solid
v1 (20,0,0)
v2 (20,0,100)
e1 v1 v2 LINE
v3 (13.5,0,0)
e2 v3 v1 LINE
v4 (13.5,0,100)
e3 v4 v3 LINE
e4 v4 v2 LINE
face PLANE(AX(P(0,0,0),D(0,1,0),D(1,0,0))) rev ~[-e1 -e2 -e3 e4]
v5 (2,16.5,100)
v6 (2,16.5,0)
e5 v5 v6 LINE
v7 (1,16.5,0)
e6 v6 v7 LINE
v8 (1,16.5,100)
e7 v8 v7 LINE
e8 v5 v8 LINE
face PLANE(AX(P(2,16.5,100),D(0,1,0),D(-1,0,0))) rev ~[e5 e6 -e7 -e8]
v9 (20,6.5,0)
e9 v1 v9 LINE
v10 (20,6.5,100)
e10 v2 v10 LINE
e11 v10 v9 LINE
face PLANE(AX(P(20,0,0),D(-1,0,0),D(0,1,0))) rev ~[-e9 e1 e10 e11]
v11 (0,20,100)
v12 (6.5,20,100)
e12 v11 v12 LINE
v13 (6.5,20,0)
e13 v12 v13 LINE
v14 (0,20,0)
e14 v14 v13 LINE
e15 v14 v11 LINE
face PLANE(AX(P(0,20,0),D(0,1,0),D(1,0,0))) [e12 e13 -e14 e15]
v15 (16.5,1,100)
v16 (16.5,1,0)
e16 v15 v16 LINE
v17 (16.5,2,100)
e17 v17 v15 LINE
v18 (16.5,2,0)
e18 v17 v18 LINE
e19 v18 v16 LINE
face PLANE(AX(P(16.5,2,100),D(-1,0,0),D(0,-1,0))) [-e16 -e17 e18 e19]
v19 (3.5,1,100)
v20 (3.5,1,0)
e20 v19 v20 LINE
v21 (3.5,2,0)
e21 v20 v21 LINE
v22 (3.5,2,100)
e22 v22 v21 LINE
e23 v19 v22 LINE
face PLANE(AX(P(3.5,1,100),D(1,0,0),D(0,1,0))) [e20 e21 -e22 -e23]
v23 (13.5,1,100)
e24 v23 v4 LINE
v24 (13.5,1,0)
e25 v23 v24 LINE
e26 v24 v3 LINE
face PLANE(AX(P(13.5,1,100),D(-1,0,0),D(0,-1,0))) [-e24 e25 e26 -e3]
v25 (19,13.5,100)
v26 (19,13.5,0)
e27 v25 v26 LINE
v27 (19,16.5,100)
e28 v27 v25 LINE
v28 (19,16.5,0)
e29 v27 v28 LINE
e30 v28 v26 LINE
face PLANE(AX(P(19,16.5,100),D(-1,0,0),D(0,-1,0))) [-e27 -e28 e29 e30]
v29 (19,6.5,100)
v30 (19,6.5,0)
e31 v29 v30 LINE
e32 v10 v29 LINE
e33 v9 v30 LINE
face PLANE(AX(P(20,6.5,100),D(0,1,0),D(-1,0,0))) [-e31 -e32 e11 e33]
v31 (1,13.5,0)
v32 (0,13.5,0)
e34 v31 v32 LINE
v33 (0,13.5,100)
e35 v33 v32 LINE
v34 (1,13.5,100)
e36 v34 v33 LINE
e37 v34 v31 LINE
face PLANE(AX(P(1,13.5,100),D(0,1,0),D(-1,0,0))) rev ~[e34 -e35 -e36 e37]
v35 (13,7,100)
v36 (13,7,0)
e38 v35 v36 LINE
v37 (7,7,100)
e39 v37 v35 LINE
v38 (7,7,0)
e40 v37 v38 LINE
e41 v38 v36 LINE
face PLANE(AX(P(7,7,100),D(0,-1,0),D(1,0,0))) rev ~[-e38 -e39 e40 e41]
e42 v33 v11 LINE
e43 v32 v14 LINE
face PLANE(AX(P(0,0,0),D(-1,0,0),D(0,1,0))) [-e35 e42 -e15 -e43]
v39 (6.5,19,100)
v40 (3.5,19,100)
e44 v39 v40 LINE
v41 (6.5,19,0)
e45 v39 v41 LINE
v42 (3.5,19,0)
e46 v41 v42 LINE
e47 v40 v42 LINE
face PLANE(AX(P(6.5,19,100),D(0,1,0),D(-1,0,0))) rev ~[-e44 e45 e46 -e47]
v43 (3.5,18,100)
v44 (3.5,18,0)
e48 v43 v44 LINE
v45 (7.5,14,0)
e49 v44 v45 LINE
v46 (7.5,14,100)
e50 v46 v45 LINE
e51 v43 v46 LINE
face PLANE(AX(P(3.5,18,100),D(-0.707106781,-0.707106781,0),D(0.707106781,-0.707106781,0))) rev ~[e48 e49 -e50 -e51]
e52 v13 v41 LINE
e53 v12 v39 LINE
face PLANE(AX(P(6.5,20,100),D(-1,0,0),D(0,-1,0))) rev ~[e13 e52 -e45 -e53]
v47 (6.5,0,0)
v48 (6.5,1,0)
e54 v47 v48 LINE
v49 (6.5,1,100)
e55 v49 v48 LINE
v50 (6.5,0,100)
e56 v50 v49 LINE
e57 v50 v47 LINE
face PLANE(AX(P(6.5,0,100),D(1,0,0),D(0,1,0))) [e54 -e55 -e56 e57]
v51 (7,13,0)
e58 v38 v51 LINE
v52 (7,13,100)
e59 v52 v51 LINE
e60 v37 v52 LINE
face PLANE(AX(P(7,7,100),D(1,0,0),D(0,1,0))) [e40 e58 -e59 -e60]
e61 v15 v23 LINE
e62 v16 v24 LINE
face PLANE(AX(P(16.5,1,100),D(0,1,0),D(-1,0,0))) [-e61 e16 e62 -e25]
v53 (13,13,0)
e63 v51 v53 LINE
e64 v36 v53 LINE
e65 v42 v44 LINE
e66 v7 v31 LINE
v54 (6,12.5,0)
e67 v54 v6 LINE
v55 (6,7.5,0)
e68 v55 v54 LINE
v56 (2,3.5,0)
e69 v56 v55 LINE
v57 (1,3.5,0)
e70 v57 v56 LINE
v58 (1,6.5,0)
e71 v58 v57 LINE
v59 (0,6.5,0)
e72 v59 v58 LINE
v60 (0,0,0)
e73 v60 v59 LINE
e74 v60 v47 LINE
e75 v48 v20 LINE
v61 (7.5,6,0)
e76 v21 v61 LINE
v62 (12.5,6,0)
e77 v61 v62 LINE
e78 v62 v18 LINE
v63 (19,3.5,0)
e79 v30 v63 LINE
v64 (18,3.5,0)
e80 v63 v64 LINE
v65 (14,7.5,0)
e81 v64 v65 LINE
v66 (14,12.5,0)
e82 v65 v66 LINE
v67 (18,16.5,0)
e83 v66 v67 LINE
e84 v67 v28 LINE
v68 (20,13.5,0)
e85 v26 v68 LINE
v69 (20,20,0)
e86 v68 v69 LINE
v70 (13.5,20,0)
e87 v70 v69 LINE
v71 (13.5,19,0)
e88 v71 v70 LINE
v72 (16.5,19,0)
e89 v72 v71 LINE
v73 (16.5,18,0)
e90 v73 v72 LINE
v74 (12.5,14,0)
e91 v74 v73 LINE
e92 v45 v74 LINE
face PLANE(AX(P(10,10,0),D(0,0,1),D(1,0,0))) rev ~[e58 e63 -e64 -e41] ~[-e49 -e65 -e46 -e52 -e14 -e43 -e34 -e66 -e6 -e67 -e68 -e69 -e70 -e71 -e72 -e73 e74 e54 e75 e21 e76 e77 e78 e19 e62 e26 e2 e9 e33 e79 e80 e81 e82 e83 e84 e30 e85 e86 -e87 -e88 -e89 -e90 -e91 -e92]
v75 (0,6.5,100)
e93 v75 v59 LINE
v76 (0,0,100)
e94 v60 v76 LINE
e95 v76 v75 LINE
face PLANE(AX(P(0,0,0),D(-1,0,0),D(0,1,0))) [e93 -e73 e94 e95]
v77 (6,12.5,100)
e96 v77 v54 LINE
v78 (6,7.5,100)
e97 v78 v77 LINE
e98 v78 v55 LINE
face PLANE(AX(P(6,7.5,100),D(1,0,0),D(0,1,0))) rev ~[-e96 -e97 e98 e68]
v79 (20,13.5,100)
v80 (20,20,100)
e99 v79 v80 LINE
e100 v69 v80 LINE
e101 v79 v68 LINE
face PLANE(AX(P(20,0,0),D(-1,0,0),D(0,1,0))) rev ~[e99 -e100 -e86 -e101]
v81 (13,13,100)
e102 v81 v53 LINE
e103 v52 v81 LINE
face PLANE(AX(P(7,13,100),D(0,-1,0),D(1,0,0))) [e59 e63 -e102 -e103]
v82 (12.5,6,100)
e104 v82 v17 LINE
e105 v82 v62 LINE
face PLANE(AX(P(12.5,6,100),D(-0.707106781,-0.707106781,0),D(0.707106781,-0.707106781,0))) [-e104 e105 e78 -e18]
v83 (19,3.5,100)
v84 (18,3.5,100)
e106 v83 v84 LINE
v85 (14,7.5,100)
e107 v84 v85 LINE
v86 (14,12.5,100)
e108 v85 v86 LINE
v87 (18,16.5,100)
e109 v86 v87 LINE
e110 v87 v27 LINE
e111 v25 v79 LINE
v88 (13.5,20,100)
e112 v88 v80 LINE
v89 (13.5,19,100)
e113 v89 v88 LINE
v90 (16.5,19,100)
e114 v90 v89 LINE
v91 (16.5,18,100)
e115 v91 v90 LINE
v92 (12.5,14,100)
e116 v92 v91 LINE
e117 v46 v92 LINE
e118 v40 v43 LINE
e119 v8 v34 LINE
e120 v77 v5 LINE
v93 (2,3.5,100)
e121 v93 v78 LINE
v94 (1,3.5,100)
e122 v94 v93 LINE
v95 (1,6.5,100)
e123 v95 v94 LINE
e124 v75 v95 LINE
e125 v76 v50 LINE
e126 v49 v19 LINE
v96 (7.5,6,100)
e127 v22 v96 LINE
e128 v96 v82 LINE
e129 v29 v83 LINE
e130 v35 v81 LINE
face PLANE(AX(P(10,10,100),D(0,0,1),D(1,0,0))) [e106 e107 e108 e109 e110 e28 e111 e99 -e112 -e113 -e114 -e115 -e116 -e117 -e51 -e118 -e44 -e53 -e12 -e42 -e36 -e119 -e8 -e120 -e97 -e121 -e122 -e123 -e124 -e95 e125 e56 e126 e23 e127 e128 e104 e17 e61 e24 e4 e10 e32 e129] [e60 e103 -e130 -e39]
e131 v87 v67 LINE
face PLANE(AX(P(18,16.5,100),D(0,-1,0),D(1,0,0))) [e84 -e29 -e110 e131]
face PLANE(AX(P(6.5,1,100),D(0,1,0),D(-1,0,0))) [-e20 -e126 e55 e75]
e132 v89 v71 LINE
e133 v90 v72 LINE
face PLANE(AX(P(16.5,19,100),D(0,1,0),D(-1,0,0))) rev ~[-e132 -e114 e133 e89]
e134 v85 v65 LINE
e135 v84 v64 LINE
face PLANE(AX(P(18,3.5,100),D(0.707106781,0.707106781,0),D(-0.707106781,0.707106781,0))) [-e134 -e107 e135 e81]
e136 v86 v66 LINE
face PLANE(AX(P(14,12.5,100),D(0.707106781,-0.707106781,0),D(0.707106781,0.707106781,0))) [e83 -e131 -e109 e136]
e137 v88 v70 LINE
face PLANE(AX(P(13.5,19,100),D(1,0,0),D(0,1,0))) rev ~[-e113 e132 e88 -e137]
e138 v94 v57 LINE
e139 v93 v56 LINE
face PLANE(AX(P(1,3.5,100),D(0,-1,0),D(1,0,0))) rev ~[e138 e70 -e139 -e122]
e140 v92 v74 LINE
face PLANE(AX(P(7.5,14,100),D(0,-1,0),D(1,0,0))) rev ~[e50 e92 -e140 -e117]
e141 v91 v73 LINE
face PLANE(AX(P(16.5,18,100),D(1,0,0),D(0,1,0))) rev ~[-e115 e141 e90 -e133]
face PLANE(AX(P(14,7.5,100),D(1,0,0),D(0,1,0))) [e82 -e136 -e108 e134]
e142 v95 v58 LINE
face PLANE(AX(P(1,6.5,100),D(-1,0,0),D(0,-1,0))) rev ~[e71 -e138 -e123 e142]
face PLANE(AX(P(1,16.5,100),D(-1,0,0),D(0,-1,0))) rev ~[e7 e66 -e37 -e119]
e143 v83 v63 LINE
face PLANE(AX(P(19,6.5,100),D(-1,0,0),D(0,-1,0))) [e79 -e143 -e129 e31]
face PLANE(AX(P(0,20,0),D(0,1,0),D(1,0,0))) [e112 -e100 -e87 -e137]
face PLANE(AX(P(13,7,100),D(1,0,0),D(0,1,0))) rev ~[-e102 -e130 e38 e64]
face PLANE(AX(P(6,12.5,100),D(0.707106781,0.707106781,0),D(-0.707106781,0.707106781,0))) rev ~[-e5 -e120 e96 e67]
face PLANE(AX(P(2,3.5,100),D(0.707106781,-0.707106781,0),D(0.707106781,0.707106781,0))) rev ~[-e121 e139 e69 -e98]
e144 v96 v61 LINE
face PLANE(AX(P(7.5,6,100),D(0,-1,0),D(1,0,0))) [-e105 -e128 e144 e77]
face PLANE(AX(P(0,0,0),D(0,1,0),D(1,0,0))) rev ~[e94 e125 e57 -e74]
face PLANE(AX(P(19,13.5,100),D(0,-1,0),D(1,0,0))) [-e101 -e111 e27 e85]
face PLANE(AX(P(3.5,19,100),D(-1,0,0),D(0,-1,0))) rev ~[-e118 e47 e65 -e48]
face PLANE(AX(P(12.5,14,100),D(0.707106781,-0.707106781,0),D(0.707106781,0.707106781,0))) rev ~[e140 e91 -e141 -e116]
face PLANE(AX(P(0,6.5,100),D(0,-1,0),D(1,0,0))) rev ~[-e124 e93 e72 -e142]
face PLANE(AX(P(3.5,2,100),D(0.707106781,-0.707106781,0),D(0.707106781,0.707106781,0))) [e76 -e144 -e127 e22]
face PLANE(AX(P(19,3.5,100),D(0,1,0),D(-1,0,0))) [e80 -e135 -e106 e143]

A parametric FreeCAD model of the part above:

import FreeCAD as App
import Part
import Sketcher

V = App.Vector

doc = App.newDocument("Part")
body = doc.addObject("PartDesign::Body", "Body")

sketch1 = doc.addObject("Sketcher::SketchObject", "Sketch")
body.addObject(sketch1)
sketch1.AttachmentSupport = (doc.XY_Plane, [""])
sketch1.MapMode = "FlatFace"
sketch1.addGeometry(Part.LineSegment(V(0, 20, 0), V(0, 0, 0)), False)
sketch1.addGeometry(Part.LineSegment(V(0, 0, 0), V(20, 0, 0)), False)
sketch1.addGeometry(Part.LineSegment(V(20, 0, 0), V(20, 20, 0)), False)
sketch1.addGeometry(Part.LineSegment(V(20, 20, 0), V(0, 20, 0)), False)
sketch1.addConstraint(Sketcher.Constraint("Coincident", 0, 2, 1, 1))
sketch1.addConstraint(Sketcher.Constraint("Coincident", 1, 2, 2, 1))
sketch1.addConstraint(Sketcher.Constraint("Coincident", 2, 2, 3, 1))
sketch1.addConstraint(Sketcher.Constraint("Coincident", 3, 2, 0, 1))
sketch1.addConstraint(Sketcher.Constraint("Vertical", 0))
sketch1.addConstraint(Sketcher.Constraint("Horizontal", 1))
sketch1.addConstraint(Sketcher.Constraint("Vertical", 2))
sketch1.addConstraint(Sketcher.Constraint("Horizontal", 3))
sketch1.addConstraint(Sketcher.Constraint("Coincident", 0, 2, -1, 1))
sketch1.addConstraint(Sketcher.Constraint("Equal", 3, 0))
sketch1.addConstraint(Sketcher.Constraint("DistanceX", 1, 1, 1, 2, 20.0))
pad1 = doc.addObject("PartDesign::Pad", "Pad")
body.addObject(pad1)
pad1.Profile = sketch1
pad1.Length = 100

sketch2 = doc.addObject("Sketcher::SketchObject", "Sketch001")
body.addObject(sketch2)
sketch2.AttachmentSupport = (doc.XY_Plane, [""])
sketch2.MapMode = "FlatFace"
sketch2.AttachmentOffset = App.Placement(V(0, 0, 100), App.Rotation())
sketch2.addGeometry(Part.LineSegment(V(7, 13, 0), V(7, 7, 0)), False)
sketch2.addGeometry(Part.LineSegment(V(7, 7, 0), V(13, 7, 0)), False)
sketch2.addGeometry(Part.LineSegment(V(13, 7, 0), V(13, 13, 0)), False)
sketch2.addGeometry(Part.LineSegment(V(13, 13, 0), V(7, 13, 0)), False)
sketch2.addConstraint(Sketcher.Constraint("Coincident", 0, 2, 1, 1))
sketch2.addConstraint(Sketcher.Constraint("Coincident", 1, 2, 2, 1))
sketch2.addConstraint(Sketcher.Constraint("Coincident", 2, 2, 3, 1))
sketch2.addConstraint(Sketcher.Constraint("Coincident", 3, 2, 0, 1))
sketch2.addConstraint(Sketcher.Constraint("Vertical", 0))
sketch2.addConstraint(Sketcher.Constraint("Horizontal", 1))
sketch2.addConstraint(Sketcher.Constraint("Vertical", 2))
sketch2.addConstraint(Sketcher.Constraint("Horizontal", 3))
sketch2.addConstraint(Sketcher.Constraint("Equal", 3, 0))
sketch2.addConstraint(Sketcher.Constraint("DistanceX", 1, 1, 1, 2, 6.0))
sketch2.addConstraint(Sketcher.Constraint("DistanceX", -1, 1, 0, 2, 7.0))
sketch2.addConstraint(Sketcher.Constraint("DistanceY", -1, 1, 0, 2, 7.0))
pocket1 = doc.addObject("PartDesign::Pocket", "Pocket")
body.addObject(pocket1)
pocket1.Profile = sketch2
pocket1.Type = "ThroughAll"

sketch3 = doc.addObject("Sketcher::SketchObject", "Sketch002")
body.addObject(sketch3)
sketch3.AttachmentSupport = (doc.XY_Plane, [""])
sketch3.MapMode = "FlatFace"
sketch3.AttachmentOffset = App.Placement(V(0, 0, 100), App.Rotation())
sketch3.addGeometry(Part.LineSegment(V(0, 6.5, 0), V(1, 6.5, 0)), False)
sketch3.addGeometry(Part.LineSegment(V(1, 6.5, 0), V(1, 3.5, 0)), False)
sketch3.addGeometry(Part.LineSegment(V(1, 3.5, 0), V(2, 3.5, 0)), False)
sketch3.addGeometry(Part.LineSegment(V(2, 3.5, 0), V(6, 7.5, 0)), False)
sketch3.addGeometry(Part.LineSegment(V(6, 7.5, 0), V(6, 12.5, 0)), False)
sketch3.addGeometry(Part.LineSegment(V(6, 12.5, 0), V(2, 16.5, 0)), False)
sketch3.addGeometry(Part.LineSegment(V(2, 16.5, 0), V(1, 16.5, 0)), False)
sketch3.addGeometry(Part.LineSegment(V(1, 16.5, 0), V(1, 13.5, 0)), False)
sketch3.addGeometry(Part.LineSegment(V(1, 13.5, 0), V(0, 13.5, 0)), False)
sketch3.addGeometry(Part.LineSegment(V(0, 13.5, 0), V(0, 6.5, 0)), False)
sketch3.addGeometry(Part.LineSegment(V(6.5, 1, 0), V(6.5, 0, 0)), False)
sketch3.addGeometry(Part.LineSegment(V(6.5, 0, 0), V(13.5, 0, 0)), False)
sketch3.addGeometry(Part.LineSegment(V(13.5, 0, 0), V(13.5, 1, 0)), False)
sketch3.addGeometry(Part.LineSegment(V(13.5, 1, 0), V(16.5, 1, 0)), False)
sketch3.addGeometry(Part.LineSegment(V(16.5, 1, 0), V(16.5, 2, 0)), False)
sketch3.addGeometry(Part.LineSegment(V(16.5, 2, 0), V(12.5, 6, 0)), False)
sketch3.addGeometry(Part.LineSegment(V(12.5, 6, 0), V(7.5, 6, 0)), False)
sketch3.addGeometry(Part.LineSegment(V(7.5, 6, 0), V(3.5, 2, 0)), False)
sketch3.addGeometry(Part.LineSegment(V(3.5, 2, 0), V(3.5, 1, 0)), False)
sketch3.addGeometry(Part.LineSegment(V(3.5, 1, 0), V(6.5, 1, 0)), False)
sketch3.addGeometry(Part.LineSegment(V(19, 6.5, 0), V(20, 6.5, 0)), False)
sketch3.addGeometry(Part.LineSegment(V(20, 6.5, 0), V(20, 13.5, 0)), False)
sketch3.addGeometry(Part.LineSegment(V(20, 13.5, 0), V(19, 13.5, 0)), False)
sketch3.addGeometry(Part.LineSegment(V(19, 13.5, 0), V(19, 16.5, 0)), False)
sketch3.addGeometry(Part.LineSegment(V(19, 16.5, 0), V(18, 16.5, 0)), False)
sketch3.addGeometry(Part.LineSegment(V(18, 16.5, 0), V(14, 12.5, 0)), False)
sketch3.addGeometry(Part.LineSegment(V(14, 12.5, 0), V(14, 7.5, 0)), False)
sketch3.addGeometry(Part.LineSegment(V(14, 7.5, 0), V(18, 3.5, 0)), False)
sketch3.addGeometry(Part.LineSegment(V(18, 3.5, 0), V(19, 3.5, 0)), False)
sketch3.addGeometry(Part.LineSegment(V(19, 3.5, 0), V(19, 6.5, 0)), False)
sketch3.addGeometry(Part.LineSegment(V(6.5, 20, 0), V(6.5, 19, 0)), False)
sketch3.addGeometry(Part.LineSegment(V(6.5, 19, 0), V(3.5, 19, 0)), False)
sketch3.addGeometry(Part.LineSegment(V(3.5, 19, 0), V(3.5, 18, 0)), False)
sketch3.addGeometry(Part.LineSegment(V(3.5, 18, 0), V(7.5, 14, 0)), False)
sketch3.addGeometry(Part.LineSegment(V(7.5, 14, 0), V(12.5, 14, 0)), False)
sketch3.addGeometry(Part.LineSegment(V(12.5, 14, 0), V(16.5, 18, 0)), False)
sketch3.addGeometry(Part.LineSegment(V(16.5, 18, 0), V(16.5, 19, 0)), False)
sketch3.addGeometry(Part.LineSegment(V(16.5, 19, 0), V(13.5, 19, 0)), False)
sketch3.addGeometry(Part.LineSegment(V(13.5, 19, 0), V(13.5, 20, 0)), False)
sketch3.addGeometry(Part.LineSegment(V(13.5, 20, 0), V(6.5, 20, 0)), False)
sketch3.addConstraint(Sketcher.Constraint("Coincident", 0, 2, 1, 1))
sketch3.addConstraint(Sketcher.Constraint("Coincident", 1, 2, 2, 1))
sketch3.addConstraint(Sketcher.Constraint("Coincident", 2, 2, 3, 1))
sketch3.addConstraint(Sketcher.Constraint("Coincident", 3, 2, 4, 1))
sketch3.addConstraint(Sketcher.Constraint("Coincident", 4, 2, 5, 1))
sketch3.addConstraint(Sketcher.Constraint("Coincident", 5, 2, 6, 1))
sketch3.addConstraint(Sketcher.Constraint("Coincident", 6, 2, 7, 1))
sketch3.addConstraint(Sketcher.Constraint("Coincident", 7, 2, 8, 1))
sketch3.addConstraint(Sketcher.Constraint("Coincident", 8, 2, 9, 1))
sketch3.addConstraint(Sketcher.Constraint("Coincident", 9, 2, 0, 1))
sketch3.addConstraint(Sketcher.Constraint("Coincident", 10, 2, 11, 1))
sketch3.addConstraint(Sketcher.Constraint("Coincident", 11, 2, 12, 1))
sketch3.addConstraint(Sketcher.Constraint("Coincident", 12, 2, 13, 1))
sketch3.addConstraint(Sketcher.Constraint("Coincident", 13, 2, 14, 1))
sketch3.addConstraint(Sketcher.Constraint("Coincident", 14, 2, 15, 1))
sketch3.addConstraint(Sketcher.Constraint("Coincident", 15, 2, 16, 1))
sketch3.addConstraint(Sketcher.Constraint("Coincident", 16, 2, 17, 1))
sketch3.addConstraint(Sketcher.Constraint("Coincident", 17, 2, 18, 1))
sketch3.addConstraint(Sketcher.Constraint("Coincident", 18, 2, 19, 1))
sketch3.addConstraint(Sketcher.Constraint("Coincident", 19, 2, 10, 1))
sketch3.addConstraint(Sketcher.Constraint("Coincident", 20, 2, 21, 1))
sketch3.addConstraint(Sketcher.Constraint("Coincident", 21, 2, 22, 1))
sketch3.addConstraint(Sketcher.Constraint("Coincident", 22, 2, 23, 1))
sketch3.addConstraint(Sketcher.Constraint("Coincident", 23, 2, 24, 1))
sketch3.addConstraint(Sketcher.Constraint("Coincident", 24, 2, 25, 1))
sketch3.addConstraint(Sketcher.Constraint("Coincident", 25, 2, 26, 1))
sketch3.addConstraint(Sketcher.Constraint("Coincident", 26, 2, 27, 1))
sketch3.addConstraint(Sketcher.Constraint("Coincident", 27, 2, 28, 1))
sketch3.addConstraint(Sketcher.Constraint("Coincident", 28, 2, 29, 1))
sketch3.addConstraint(Sketcher.Constraint("Coincident", 29, 2, 20, 1))
sketch3.addConstraint(Sketcher.Constraint("Coincident", 30, 2, 31, 1))
sketch3.addConstraint(Sketcher.Constraint("Coincident", 31, 2, 32, 1))
sketch3.addConstraint(Sketcher.Constraint("Coincident", 32, 2, 33, 1))
sketch3.addConstraint(Sketcher.Constraint("Coincident", 33, 2, 34, 1))
sketch3.addConstraint(Sketcher.Constraint("Coincident", 34, 2, 35, 1))
sketch3.addConstraint(Sketcher.Constraint("Coincident", 35, 2, 36, 1))
sketch3.addConstraint(Sketcher.Constraint("Coincident", 36, 2, 37, 1))
sketch3.addConstraint(Sketcher.Constraint("Coincident", 37, 2, 38, 1))
sketch3.addConstraint(Sketcher.Constraint("Coincident", 38, 2, 39, 1))
sketch3.addConstraint(Sketcher.Constraint("Coincident", 39, 2, 30, 1))
sketch3.addConstraint(Sketcher.Constraint("Horizontal", 0))
sketch3.addConstraint(Sketcher.Constraint("Vertical", 1))
sketch3.addConstraint(Sketcher.Constraint("Horizontal", 2))
sketch3.addConstraint(Sketcher.Constraint("Vertical", 4))
sketch3.addConstraint(Sketcher.Constraint("Horizontal", 6))
sketch3.addConstraint(Sketcher.Constraint("Vertical", 7))
sketch3.addConstraint(Sketcher.Constraint("Horizontal", 8))
sketch3.addConstraint(Sketcher.Constraint("Vertical", 9))
sketch3.addConstraint(Sketcher.Constraint("Vertical", 10))
sketch3.addConstraint(Sketcher.Constraint("Horizontal", 11))
sketch3.addConstraint(Sketcher.Constraint("Vertical", 12))
sketch3.addConstraint(Sketcher.Constraint("Horizontal", 13))
sketch3.addConstraint(Sketcher.Constraint("Vertical", 14))
sketch3.addConstraint(Sketcher.Constraint("Horizontal", 16))
sketch3.addConstraint(Sketcher.Constraint("Vertical", 18))
sketch3.addConstraint(Sketcher.Constraint("Horizontal", 19))
sketch3.addConstraint(Sketcher.Constraint("Horizontal", 20))
sketch3.addConstraint(Sketcher.Constraint("Vertical", 21))
sketch3.addConstraint(Sketcher.Constraint("Horizontal", 22))
sketch3.addConstraint(Sketcher.Constraint("Vertical", 23))
sketch3.addConstraint(Sketcher.Constraint("Horizontal", 24))
sketch3.addConstraint(Sketcher.Constraint("Vertical", 26))
sketch3.addConstraint(Sketcher.Constraint("Horizontal", 28))
sketch3.addConstraint(Sketcher.Constraint("Vertical", 29))
sketch3.addConstraint(Sketcher.Constraint("Vertical", 30))
sketch3.addConstraint(Sketcher.Constraint("Horizontal", 31))
sketch3.addConstraint(Sketcher.Constraint("Vertical", 32))
sketch3.addConstraint(Sketcher.Constraint("Horizontal", 34))
sketch3.addConstraint(Sketcher.Constraint("Vertical", 36))
sketch3.addConstraint(Sketcher.Constraint("Horizontal", 37))
sketch3.addConstraint(Sketcher.Constraint("Vertical", 38))
sketch3.addConstraint(Sketcher.Constraint("Horizontal", 39))
sketch3.addConstraint(Sketcher.Constraint("PointOnObject", 8, 2, -2))
sketch3.addConstraint(Sketcher.Constraint("PointOnObject", 10, 2, -1))
sketch3.addConstraint(Sketcher.Constraint("Perpendicular", 3, 5))
sketch3.addConstraint(Sketcher.Constraint("Parallel", 5, 15))
sketch3.addConstraint(Sketcher.Constraint("Perpendicular", 15, 17))
sketch3.addConstraint(Sketcher.Constraint("Parallel", 17, 25))
sketch3.addConstraint(Sketcher.Constraint("Perpendicular", 25, 27))
sketch3.addConstraint(Sketcher.Constraint("Parallel", 27, 33))
sketch3.addConstraint(Sketcher.Constraint("Perpendicular", 33, 35))
sketch3.addConstraint(Sketcher.Constraint("Horizontal", 14, 2, 17, 2))
sketch3.addConstraint(Sketcher.Constraint("Horizontal", 13, 2, 18, 2))
sketch3.addConstraint(Sketcher.Constraint("Horizontal", 9, 2, 20, 2))
sketch3.addConstraint(Sketcher.Constraint("Horizontal", 8, 2, 21, 2))
sketch3.addConstraint(Sketcher.Constraint("Horizontal", 6, 2, 23, 2))
sketch3.addConstraint(Sketcher.Constraint("Horizontal", 4, 2, 25, 2))
sketch3.addConstraint(Sketcher.Constraint("Horizontal", 3, 2, 26, 2))
sketch3.addConstraint(Sketcher.Constraint("Horizontal", 2, 2, 27, 2))
sketch3.addConstraint(Sketcher.Constraint("Horizontal", 32, 2, 35, 2))
sketch3.addConstraint(Sketcher.Constraint("Horizontal", 31, 2, 36, 2))
sketch3.addConstraint(Sketcher.Constraint("Vertical", 2, 2, 5, 2))
sketch3.addConstraint(Sketcher.Constraint("Vertical", 1, 2, 6, 2))
sketch3.addConstraint(Sketcher.Constraint("Vertical", 24, 2, 27, 2))
sketch3.addConstraint(Sketcher.Constraint("Vertical", 23, 2, 28, 2))
sketch3.addConstraint(Sketcher.Constraint("Vertical", 19, 2, 30, 2))
sketch3.addConstraint(Sketcher.Constraint("Vertical", 18, 2, 31, 2))
sketch3.addConstraint(Sketcher.Constraint("Vertical", 16, 2, 33, 2))
sketch3.addConstraint(Sketcher.Constraint("Vertical", 15, 2, 34, 2))
sketch3.addConstraint(Sketcher.Constraint("Vertical", 12, 2, 37, 2))
sketch3.addConstraint(Sketcher.Constraint("Equal", 0, 2))
sketch3.addConstraint(Sketcher.Constraint("Equal", 13, 19))
sketch3.addConstraint(Sketcher.Constraint("Equal", 8, 20))
sketch3.addConstraint(Sketcher.Constraint("Equal", 22, 24))
sketch3.addConstraint(Sketcher.Constraint("Equal", 37, 1))
sketch3.addConstraint(Sketcher.Constraint("Equal", 34, 4))
sketch3.addConstraint(Sketcher.Constraint("Equal", 1, 7))
sketch3.addConstraint(Sketcher.Constraint("Equal", 39, 9))
sketch3.addConstraint(Sketcher.Constraint("Equal", 28, 10))
sketch3.addConstraint(Sketcher.Constraint("Equal", 12, 14))
sketch3.addConstraint(Sketcher.Constraint("Equal", 18, 30))
sketch3.addConstraint(Sketcher.Constraint("Equal", 30, 32))
sketch3.addConstraint(Sketcher.Constraint("DistanceX", 0, 1, 0, 2, 1.0))
sketch3.addConstraint(Sketcher.Constraint("DistanceX", 11, 1, 11, 2, 7.0))
sketch3.addConstraint(Sketcher.Constraint("DistanceX", 13, 1, 13, 2, 3.0))
sketch3.addConstraint(Sketcher.Constraint("DistanceX", 16, 2, 16, 1, 5.0))
sketch3.addConstraint(Sketcher.Constraint("DistanceX", -1, 1, 20, 2, 20.0))
sketch3.addConstraint(Sketcher.Constraint("DistanceY", -1, 1, 30, 2, 19.0))
sketch3.addConstraint(Sketcher.Constraint("DistanceY", -1, 1, 0, 2, 6.5))
sketch3.addConstraint(Sketcher.Constraint("DistanceX", -1, 1, 10, 2, 6.5))
pocket2 = doc.addObject("PartDesign::Pocket", "Pocket001")
body.addObject(pocket2)
pocket2.Profile = sketch3
pocket2.Type = "ThroughAll"

doc.recompute()
